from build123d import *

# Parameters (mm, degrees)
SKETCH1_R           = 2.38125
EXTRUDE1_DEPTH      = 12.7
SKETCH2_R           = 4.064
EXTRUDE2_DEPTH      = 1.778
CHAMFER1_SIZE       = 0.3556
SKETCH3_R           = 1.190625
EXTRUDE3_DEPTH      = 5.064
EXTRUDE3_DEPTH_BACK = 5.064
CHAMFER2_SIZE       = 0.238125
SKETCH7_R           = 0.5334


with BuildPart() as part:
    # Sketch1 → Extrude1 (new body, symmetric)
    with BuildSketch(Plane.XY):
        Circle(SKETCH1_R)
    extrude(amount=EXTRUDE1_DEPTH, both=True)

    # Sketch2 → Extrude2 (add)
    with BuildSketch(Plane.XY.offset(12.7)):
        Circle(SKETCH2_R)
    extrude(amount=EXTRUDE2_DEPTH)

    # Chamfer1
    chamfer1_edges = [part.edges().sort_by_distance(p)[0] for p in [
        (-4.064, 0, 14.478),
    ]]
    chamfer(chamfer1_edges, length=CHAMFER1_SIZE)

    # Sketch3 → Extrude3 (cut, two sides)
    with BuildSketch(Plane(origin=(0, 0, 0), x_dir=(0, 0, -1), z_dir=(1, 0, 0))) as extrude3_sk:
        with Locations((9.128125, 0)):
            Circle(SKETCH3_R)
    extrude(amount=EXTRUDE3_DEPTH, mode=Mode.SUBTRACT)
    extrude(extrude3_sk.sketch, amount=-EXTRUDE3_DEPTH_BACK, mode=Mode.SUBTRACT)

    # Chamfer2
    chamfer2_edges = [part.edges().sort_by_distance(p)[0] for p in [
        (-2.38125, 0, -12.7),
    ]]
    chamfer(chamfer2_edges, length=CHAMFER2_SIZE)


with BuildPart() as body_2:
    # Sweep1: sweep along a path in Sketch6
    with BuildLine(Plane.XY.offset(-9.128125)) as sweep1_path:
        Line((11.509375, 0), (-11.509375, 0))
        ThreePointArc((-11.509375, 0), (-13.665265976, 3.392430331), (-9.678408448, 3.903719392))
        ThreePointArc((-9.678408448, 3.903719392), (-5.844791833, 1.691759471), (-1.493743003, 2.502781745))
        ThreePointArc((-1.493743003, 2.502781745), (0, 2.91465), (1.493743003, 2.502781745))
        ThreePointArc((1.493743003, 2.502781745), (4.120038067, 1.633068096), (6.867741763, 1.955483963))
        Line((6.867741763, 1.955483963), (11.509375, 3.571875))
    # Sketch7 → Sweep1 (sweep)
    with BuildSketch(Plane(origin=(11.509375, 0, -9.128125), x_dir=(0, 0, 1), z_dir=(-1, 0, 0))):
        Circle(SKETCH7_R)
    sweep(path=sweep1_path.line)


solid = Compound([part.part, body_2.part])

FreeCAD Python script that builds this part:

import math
import FreeCAD as App
import Part
import Sketcher
from FreeCAD import Vector
Q = App.Units.Quantity


def edges_at(feature, points):
    """Names of the edges that pass closest to the given points."""
    edges = feature.Shape.Edges
    near = lambda p: min(range(len(edges)), key=lambda i: edges[i].distToShape(Part.Vertex(*p))[0])
    return sorted({f"Edge{near(p) + 1}" for p in points})

doc = App.newDocument("Part")
body = doc.addObject("PartDesign::Body", "Body")

# Sketch on XY plane
sketch1 = body.newObject("Sketcher::SketchObject", "Sketch")
sketch1.AttachmentSupport = (doc.getObject("XY_Plane"), [""])
sketch1.MapMode = "FlatFace"
sketch1.addGeometry(Part.Circle(Vector(0, 0, 0), Vector(0, 0, 1), 2.4), False)
sketch1.addConstraint([
    Sketcher.Constraint("Coincident", 0, 3, -1, 1),
    Sketcher.Constraint("Diameter", 0, Q("0.1875 in")),
])
pad1 = body.newObject("PartDesign::Pad", "Pad")
pad1.Profile = sketch1
pad1.Length = Q("1 in")
pad1.Midplane = True

# Sketch on XY plane
sketch2 = body.newObject("Sketcher::SketchObject", "Sketch001")
sketch2.AttachmentSupport = (doc.getObject("XY_Plane"), [""])
sketch2.MapMode = "FlatFace"
sketch2.AttachmentOffset = App.Placement(Vector(0, 0, 0.5 * 25.4), App.Rotation())
sketch2.addGeometry(Part.Circle(Vector(0, 0, 0), Vector(0, 0, 1), 4.1), False)
sketch2.addConstraint([
    Sketcher.Constraint("Coincident", 0, 3, -1, 1),
    Sketcher.Constraint("Diameter", 0, Q("0.32 in")),
])
pad2 = body.newObject("PartDesign::Pad", "Pad001")
pad2.Profile = sketch2
pad2.Length = Q("0.07 in")
doc.recompute()

chamfer = body.newObject("PartDesign::Chamfer", "Chamfer")
chamfer.Base = (pad2, edges_at(pad2, [(-4.064, 0, 14.478)]))
chamfer.Size = Q("0.014 in")

# Sketch on YZ plane
sketch3 = body.newObject("Sketcher::SketchObject", "Sketch002")
sketch3.AttachmentSupport = (doc.getObject("YZ_Plane"), [""])
sketch3.MapMode = "FlatFace"
sketch3.addGeometry(Part.Circle(Vector(0, -9.1, 0), Vector(0, 0, 1), 1.2), False)
sketch3.addConstraint([
    Sketcher.Constraint("PointOnObject", 0, 3, -2),
    Sketcher.Constraint("Diameter", 0, Q("0.09375 in")),
    Sketcher.Constraint("DistanceY", 0, 3, -1, 1, Q("0.359375 in")),
])
pocket1 = body.newObject("PartDesign::Pocket", "Pocket")
pocket1.Profile = sketch3
pocket1.Type = "ThroughAll"
pocket1.Midplane = True
doc.recompute()

chamfer2 = body.newObject("PartDesign::Chamfer", "Chamfer001")
chamfer2.Base = (pocket1, edges_at(pocket1, [(-2.381, 0, -12.7)]))
chamfer2.Size = 0.238125
body2 = doc.addObject("PartDesign::Body", "Body001")

# Sketch on YZ plane
sketch4 = body2.newObject("Sketcher::SketchObject", "Sketch003")
sketch4.AttachmentSupport = (doc.getObject("YZ_Plane001"), [""])
sketch4.MapMode = "FlatFace"
sketch4.AttachmentOffset = App.Placement(Vector(0, 0, 0.453125 * 25.4), App.Rotation())
sketch4.addGeometry(Part.Circle(Vector(0, -9.1, 0), Vector(0, 0, 1), 0.5), False)
sketch4.addConstraint([
    Sketcher.Constraint("PointOnObject", 0, 3, -2),
    Sketcher.Constraint("Diameter", 0, Q("0.042 in")),
    Sketcher.Constraint("DistanceY", 0, 3, -1, 1, Q("0.359375 in")),
])

# Sketch on XY plane
sketch5 = body2.newObject("Sketcher::SketchObject", "Sketch004")
sketch5.AttachmentSupport = (doc.getObject("XY_Plane001"), [""])
sketch5.MapMode = "FlatFace"
sketch5.AttachmentOffset = App.Placement(Vector(0, 0, -0.359375 * 25.4), App.Rotation())
sketch5.addGeometry([
    Part.LineSegment(Vector(11.5, 0, 0), Vector(-11.5, 0, 0)),  # 0
    Part.ArcOfCircle(Part.Circle(Vector(-11.5, 2.4, 0), Vector(0, 0, 1), 2.4), math.radians(40), math.radians(270)),  # 1
    Part.ArcOfCircle(Part.Circle(Vector(-4.8, 8, 0), Vector(0, 0, 1), 6.4), math.radians(-140), math.radians(-59)),  # 2
    Part.ArcOfCircle(Part.Circle(Vector(0, 0, 0), Vector(0, 0, 1), 2.9), math.radians(59), math.radians(121)),  # 3
    Part.ArcOfCircle(Part.Circle(Vector(4.8, 8, 0), Vector(0, 0, 1), 6.4), math.radians(-121), math.radians(-71)),  # 4
    Part.LineSegment(Vector(6.9, 2, 0), Vector(11.5, 3.6, 0)),  # 5
], False)
sketch5.addConstraint([
    Sketcher.Constraint("Tangent", 0, 2, 1, 2),
    Sketcher.Constraint("Tangent", 1, 1, 2, 1),
    Sketcher.Constraint("Tangent", 2, 2, 3, 2),
    Sketcher.Constraint("Tangent", 3, 1, 4, 1),
    Sketcher.Constraint("Tangent", 4, 2, 5, 1),
    Sketcher.Constraint("Horizontal", 0),
    Sketcher.Constraint("Coincident", 3, 3, -1, 1),
    Sketcher.Constraint("Equal", 2, 4),
    Sketcher.Constraint("Symmetric", 0, 1, 0, 2, -1, 1),
    Sketcher.Constraint("Horizontal", 2, 3, 4, 3),
    Sketcher.Constraint("Vertical", 0, 1, 5, 2),
    Sketcher.Constraint("Radius", 1, Q("0.09375 in")),
    Sketcher.Constraint("DistanceX", 0, 2, 0, 1, Q("0.90625 in")),
    Sketcher.Constraint("DistanceY", -1, 1, 5, 2, Q("0.140625 in")),
    Sketcher.Constraint("Radius", 2, 6.387261),
    Sketcher.Constraint("Radius", 3, 2.91465),
])
doc.recompute()

additivepipe = body2.newObject("PartDesign::AdditivePipe", "AdditivePipe")
additivepipe.Profile = sketch4
additivepipe.Spine = (sketch5, ["Edge1", "Edge2", "Edge3", "Edge4", "Edge5", "Edge6"])

doc.recompute()
